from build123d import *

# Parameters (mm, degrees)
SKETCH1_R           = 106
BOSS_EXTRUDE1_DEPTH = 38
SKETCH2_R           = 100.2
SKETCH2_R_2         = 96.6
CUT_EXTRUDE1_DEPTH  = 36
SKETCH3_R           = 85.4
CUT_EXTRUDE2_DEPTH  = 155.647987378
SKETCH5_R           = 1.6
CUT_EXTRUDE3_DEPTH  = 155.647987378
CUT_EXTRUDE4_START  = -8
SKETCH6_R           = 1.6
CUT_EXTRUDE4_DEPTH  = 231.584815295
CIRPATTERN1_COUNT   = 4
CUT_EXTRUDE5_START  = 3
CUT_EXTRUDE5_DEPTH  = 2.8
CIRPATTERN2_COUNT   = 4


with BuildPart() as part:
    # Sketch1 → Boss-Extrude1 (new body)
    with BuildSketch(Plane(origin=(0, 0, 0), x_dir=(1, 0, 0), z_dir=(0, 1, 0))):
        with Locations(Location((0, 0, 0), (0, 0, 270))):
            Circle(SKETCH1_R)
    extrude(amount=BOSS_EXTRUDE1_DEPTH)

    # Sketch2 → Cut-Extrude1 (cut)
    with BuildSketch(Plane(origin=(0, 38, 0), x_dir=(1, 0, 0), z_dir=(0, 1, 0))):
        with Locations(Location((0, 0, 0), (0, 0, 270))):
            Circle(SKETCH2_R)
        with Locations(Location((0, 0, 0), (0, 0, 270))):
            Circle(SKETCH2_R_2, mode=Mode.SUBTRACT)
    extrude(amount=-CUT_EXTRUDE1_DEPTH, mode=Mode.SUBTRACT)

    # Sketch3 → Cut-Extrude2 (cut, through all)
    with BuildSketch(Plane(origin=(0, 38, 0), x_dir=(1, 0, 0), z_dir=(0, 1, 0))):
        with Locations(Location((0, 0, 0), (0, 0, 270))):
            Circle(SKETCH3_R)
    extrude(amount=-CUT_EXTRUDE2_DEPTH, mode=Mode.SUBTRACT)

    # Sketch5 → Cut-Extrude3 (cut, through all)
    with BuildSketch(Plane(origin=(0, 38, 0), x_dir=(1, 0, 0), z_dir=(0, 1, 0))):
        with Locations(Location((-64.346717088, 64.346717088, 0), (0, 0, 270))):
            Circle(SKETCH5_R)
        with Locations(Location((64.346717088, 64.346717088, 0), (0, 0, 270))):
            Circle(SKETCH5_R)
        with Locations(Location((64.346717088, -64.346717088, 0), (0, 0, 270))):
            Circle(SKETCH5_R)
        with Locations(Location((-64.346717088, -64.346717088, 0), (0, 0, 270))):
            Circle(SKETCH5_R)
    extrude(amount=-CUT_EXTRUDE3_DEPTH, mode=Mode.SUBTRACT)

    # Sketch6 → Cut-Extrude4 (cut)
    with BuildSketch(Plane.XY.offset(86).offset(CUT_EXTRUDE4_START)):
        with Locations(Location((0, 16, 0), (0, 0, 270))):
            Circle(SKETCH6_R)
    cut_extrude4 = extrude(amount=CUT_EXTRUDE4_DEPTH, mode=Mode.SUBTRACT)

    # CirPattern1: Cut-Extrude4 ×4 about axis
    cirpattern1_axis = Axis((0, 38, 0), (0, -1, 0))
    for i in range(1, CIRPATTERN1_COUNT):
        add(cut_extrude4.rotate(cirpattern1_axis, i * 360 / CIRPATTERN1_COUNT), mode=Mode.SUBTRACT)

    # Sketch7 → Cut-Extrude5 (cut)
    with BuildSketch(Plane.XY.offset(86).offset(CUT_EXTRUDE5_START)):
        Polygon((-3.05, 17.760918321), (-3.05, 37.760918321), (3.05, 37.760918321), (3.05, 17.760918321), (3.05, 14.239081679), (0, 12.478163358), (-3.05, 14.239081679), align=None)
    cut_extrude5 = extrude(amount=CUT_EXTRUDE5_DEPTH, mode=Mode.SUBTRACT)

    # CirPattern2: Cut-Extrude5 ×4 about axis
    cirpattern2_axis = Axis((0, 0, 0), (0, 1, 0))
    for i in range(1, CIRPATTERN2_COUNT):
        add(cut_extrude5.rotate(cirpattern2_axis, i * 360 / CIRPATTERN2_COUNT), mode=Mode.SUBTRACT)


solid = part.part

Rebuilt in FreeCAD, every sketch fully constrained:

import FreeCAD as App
import Part
import Sketcher
Q = App.Units.Quantity

doc = App.newDocument("Part")
body = doc.addObject("PartDesign::Body", "Body")

sketch1 = doc.addObject("Sketcher::SketchObject", "Sketch")
body.addObject(sketch1)
sketch1.AttachmentSupport = (doc.XZ_Plane, [""])
sketch1.MapMode = "FlatFace"
sketch1.addGeometry(Part.Circle(App.Vector(0, 0, 0), App.Vector(0, 0, 1), 106), False)
sketch1.addConstraint([
    Sketcher.Constraint("Coincident", 0, 3, -1, 1),
    Sketcher.Constraint("Diameter", 0, 212.0),
])
pad1 = doc.addObject("PartDesign::Pad", "Pad")
body.addObject(pad1)
pad1.Profile = sketch1
pad1.Length = 38
pad1.Reversed = True

sketch2 = doc.addObject("Sketcher::SketchObject", "Sketch001")
body.addObject(sketch2)
sketch2.AttachmentSupport = (doc.XZ_Plane, [""])
sketch2.MapMode = "FlatFace"
sketch2.AttachmentOffset = App.Placement(App.Vector(0, 0, -38), App.Rotation())
sketch2.addGeometry([
    Part.Circle(App.Vector(0, 0, 0), App.Vector(0, 0, 1), 100),
    Part.Circle(App.Vector(0, 0, 0), App.Vector(0, 0, 1), 97),
], False)
sketch2.addConstraint([
    Sketcher.Constraint("Coincident", 0, 3, -1, 1),
    Sketcher.Constraint("Coincident", 1, 3, -1, 1),
    Sketcher.Constraint("Diameter", 0, 200.4),
    Sketcher.Constraint("Diameter", 1, 193.2),
])
pocket1 = doc.addObject("PartDesign::Pocket", "Pocket")
body.addObject(pocket1)
pocket1.Profile = sketch2
pocket1.Length = 36
pocket1.Reversed = True

sketch3 = doc.addObject("Sketcher::SketchObject", "Sketch002")
body.addObject(sketch3)
sketch3.AttachmentSupport = (doc.XZ_Plane, [""])
sketch3.MapMode = "FlatFace"
sketch3.AttachmentOffset = App.Placement(App.Vector(0, 0, -38), App.Rotation())
sketch3.addGeometry(Part.Circle(App.Vector(0, 0, 0), App.Vector(0, 0, 1), 85), False)
sketch3.addConstraint([
    Sketcher.Constraint("Coincident", 0, 3, -1, 1),
    Sketcher.Constraint("Diameter", 0, 170.8),
])
pocket2 = doc.addObject("PartDesign::Pocket", "Pocket001")
body.addObject(pocket2)
pocket2.Profile = sketch3
pocket2.Type = "ThroughAll"
pocket2.Reversed = True

sketch4 = doc.addObject("Sketcher::SketchObject", "Sketch003")
body.addObject(sketch4)
sketch4.AttachmentSupport = (doc.XZ_Plane, [""])
sketch4.MapMode = "FlatFace"
sketch4.AttachmentOffset = App.Placement(App.Vector(0, 0, -38), App.Rotation())
sketch4.addGeometry([
    Part.Circle(App.Vector(-64.3, -64.3, 0), App.Vector(0, 0, 1), 1.6),
    Part.Circle(App.Vector(64.3, -64.3, 0), App.Vector(0, 0, 1), 1.6),
    Part.Circle(App.Vector(64.3, 64.3, 0), App.Vector(0, 0, 1), 1.6),
    Part.Circle(App.Vector(-64.3, 64.3, 0), App.Vector(0, 0, 1), 1.6),
], False)
sketch4.addConstraint([
    Sketcher.Constraint("Equal", 0, 1),
    Sketcher.Constraint("Equal", 1, 2),
    Sketcher.Constraint("Equal", 2, 3),
    Sketcher.Constraint("Symmetric", 0, 3, 2, 3, -1, 1),
    Sketcher.Constraint("Symmetric", 1, 3, 3, 3, -1, 1),
    Sketcher.Constraint("Symmetric", 0, 3, 1, 3, -2),
    Sketcher.Constraint("Diameter", 0, 3.2),
    Sketcher.Constraint("DistanceX", 0, 3, -1, 1, 64.346717),
    Sketcher.Constraint("DistanceY", 0, 3, -1, 1, 64.346717),
])
pocket3 = doc.addObject("PartDesign::Pocket", "Pocket002")
body.addObject(pocket3)
pocket3.Profile = sketch4
pocket3.Type = "ThroughAll"
pocket3.Reversed = True

sketch5 = doc.addObject("Sketcher::SketchObject", "Sketch004")
body.addObject(sketch5)
sketch5.AttachmentSupport = (doc.XY_Plane, [""])
sketch5.MapMode = "FlatFace"
sketch5.AttachmentOffset = App.Placement(App.Vector(0, 0, 78), App.Rotation())
sketch5.addGeometry(Part.Circle(App.Vector(0, 16, 0), App.Vector(0, 0, 1), 1.6), False)
sketch5.addConstraint([
    Sketcher.Constraint("PointOnObject", 0, 3, -2),
    Sketcher.Constraint("Diameter", 0, 3.2),
    Sketcher.Constraint("DistanceY", -1, 1, 0, 3, 16.0),
])
pocket4 = doc.addObject("PartDesign::Pocket", "Pocket003")
body.addObject(pocket4)
pocket4.Profile = sketch5
pocket4.Length = 231.584815
pocket4.Reversed = True
doc.recompute()

polarpattern = doc.addObject("PartDesign::PolarPattern", "PolarPattern")
body.addObject(polarpattern)
polarpattern.Originals = [pocket4]
polarpattern.Axis = (doc.Y_Axis, [""])
polarpattern.Angle = 360
polarpattern.Occurrences = 4
body.Tip = polarpattern

sketch6 = doc.addObject("Sketcher::SketchObject", "Sketch005")
body.addObject(sketch6)
sketch6.AttachmentSupport = (doc.XY_Plane, [""])
sketch6.MapMode = "FlatFace"
sketch6.AttachmentOffset = App.Placement(App.Vector(0, 0, 89), App.Rotation())
sketch6.addGeometry([
    Part.LineSegment(App.Vector(-3, 37.8, 0), App.Vector(-3, 14.2, 0)),
    Part.LineSegment(App.Vector(-3, 14.2, 0), App.Vector(0, 12.5, 0)),
    Part.LineSegment(App.Vector(0, 12.5, 0), App.Vector(3, 14.2, 0)),
    Part.LineSegment(App.Vector(3, 14.2, 0), App.Vector(3, 37.8, 0)),
    Part.LineSegment(App.Vector(3, 37.8, 0), App.Vector(-3, 37.8, 0)),
], False)
sketch6.addConstraint([
    Sketcher.Constraint("Coincident", 0, 2, 1, 1),
    Sketcher.Constraint("Coincident", 1, 2, 2, 1),
    Sketcher.Constraint("Coincident", 2, 2, 3, 1),
    Sketcher.Constraint("Coincident", 3, 2, 4, 1),
    Sketcher.Constraint("Coincident", 4, 2, 0, 1),
    Sketcher.Constraint("Vertical", 0),
    Sketcher.Constraint("Vertical", 3),
    Sketcher.Constraint("Horizontal", 4),
    Sketcher.Constraint("Symmetric", 0, 2, 2, 2, -2),
    Sketcher.Constraint("PointOnObject", 1, 2, -2),
    Sketcher.Constraint("Angle", 1, Q("-30 deg")),
    Sketcher.Constraint("DistanceX", 4, 2, 4, 1, 6.1),
    Sketcher.Constraint("DistanceY", 0, 2, 0, 1, 23.521837),
    Sketcher.Constraint("DistanceY", -1, 1, 0, 2, 14.239082),
])
pocket5 = doc.addObject("PartDesign::Pocket", "Pocket004")
body.addObject(pocket5)
pocket5.Profile = sketch6
pocket5.Length = 2.8
pocket5.Reversed = True
doc.recompute()

polarpattern2 = doc.addObject("PartDesign::PolarPattern", "PolarPattern001")
body.addObject(polarpattern2)
polarpattern2.Originals = [pocket5]
polarpattern2.Axis = (doc.Y_Axis, [""])
polarpattern2.Angle = 360
polarpattern2.Occurrences = 4
body.Tip = polarpattern2

doc.recompute()
